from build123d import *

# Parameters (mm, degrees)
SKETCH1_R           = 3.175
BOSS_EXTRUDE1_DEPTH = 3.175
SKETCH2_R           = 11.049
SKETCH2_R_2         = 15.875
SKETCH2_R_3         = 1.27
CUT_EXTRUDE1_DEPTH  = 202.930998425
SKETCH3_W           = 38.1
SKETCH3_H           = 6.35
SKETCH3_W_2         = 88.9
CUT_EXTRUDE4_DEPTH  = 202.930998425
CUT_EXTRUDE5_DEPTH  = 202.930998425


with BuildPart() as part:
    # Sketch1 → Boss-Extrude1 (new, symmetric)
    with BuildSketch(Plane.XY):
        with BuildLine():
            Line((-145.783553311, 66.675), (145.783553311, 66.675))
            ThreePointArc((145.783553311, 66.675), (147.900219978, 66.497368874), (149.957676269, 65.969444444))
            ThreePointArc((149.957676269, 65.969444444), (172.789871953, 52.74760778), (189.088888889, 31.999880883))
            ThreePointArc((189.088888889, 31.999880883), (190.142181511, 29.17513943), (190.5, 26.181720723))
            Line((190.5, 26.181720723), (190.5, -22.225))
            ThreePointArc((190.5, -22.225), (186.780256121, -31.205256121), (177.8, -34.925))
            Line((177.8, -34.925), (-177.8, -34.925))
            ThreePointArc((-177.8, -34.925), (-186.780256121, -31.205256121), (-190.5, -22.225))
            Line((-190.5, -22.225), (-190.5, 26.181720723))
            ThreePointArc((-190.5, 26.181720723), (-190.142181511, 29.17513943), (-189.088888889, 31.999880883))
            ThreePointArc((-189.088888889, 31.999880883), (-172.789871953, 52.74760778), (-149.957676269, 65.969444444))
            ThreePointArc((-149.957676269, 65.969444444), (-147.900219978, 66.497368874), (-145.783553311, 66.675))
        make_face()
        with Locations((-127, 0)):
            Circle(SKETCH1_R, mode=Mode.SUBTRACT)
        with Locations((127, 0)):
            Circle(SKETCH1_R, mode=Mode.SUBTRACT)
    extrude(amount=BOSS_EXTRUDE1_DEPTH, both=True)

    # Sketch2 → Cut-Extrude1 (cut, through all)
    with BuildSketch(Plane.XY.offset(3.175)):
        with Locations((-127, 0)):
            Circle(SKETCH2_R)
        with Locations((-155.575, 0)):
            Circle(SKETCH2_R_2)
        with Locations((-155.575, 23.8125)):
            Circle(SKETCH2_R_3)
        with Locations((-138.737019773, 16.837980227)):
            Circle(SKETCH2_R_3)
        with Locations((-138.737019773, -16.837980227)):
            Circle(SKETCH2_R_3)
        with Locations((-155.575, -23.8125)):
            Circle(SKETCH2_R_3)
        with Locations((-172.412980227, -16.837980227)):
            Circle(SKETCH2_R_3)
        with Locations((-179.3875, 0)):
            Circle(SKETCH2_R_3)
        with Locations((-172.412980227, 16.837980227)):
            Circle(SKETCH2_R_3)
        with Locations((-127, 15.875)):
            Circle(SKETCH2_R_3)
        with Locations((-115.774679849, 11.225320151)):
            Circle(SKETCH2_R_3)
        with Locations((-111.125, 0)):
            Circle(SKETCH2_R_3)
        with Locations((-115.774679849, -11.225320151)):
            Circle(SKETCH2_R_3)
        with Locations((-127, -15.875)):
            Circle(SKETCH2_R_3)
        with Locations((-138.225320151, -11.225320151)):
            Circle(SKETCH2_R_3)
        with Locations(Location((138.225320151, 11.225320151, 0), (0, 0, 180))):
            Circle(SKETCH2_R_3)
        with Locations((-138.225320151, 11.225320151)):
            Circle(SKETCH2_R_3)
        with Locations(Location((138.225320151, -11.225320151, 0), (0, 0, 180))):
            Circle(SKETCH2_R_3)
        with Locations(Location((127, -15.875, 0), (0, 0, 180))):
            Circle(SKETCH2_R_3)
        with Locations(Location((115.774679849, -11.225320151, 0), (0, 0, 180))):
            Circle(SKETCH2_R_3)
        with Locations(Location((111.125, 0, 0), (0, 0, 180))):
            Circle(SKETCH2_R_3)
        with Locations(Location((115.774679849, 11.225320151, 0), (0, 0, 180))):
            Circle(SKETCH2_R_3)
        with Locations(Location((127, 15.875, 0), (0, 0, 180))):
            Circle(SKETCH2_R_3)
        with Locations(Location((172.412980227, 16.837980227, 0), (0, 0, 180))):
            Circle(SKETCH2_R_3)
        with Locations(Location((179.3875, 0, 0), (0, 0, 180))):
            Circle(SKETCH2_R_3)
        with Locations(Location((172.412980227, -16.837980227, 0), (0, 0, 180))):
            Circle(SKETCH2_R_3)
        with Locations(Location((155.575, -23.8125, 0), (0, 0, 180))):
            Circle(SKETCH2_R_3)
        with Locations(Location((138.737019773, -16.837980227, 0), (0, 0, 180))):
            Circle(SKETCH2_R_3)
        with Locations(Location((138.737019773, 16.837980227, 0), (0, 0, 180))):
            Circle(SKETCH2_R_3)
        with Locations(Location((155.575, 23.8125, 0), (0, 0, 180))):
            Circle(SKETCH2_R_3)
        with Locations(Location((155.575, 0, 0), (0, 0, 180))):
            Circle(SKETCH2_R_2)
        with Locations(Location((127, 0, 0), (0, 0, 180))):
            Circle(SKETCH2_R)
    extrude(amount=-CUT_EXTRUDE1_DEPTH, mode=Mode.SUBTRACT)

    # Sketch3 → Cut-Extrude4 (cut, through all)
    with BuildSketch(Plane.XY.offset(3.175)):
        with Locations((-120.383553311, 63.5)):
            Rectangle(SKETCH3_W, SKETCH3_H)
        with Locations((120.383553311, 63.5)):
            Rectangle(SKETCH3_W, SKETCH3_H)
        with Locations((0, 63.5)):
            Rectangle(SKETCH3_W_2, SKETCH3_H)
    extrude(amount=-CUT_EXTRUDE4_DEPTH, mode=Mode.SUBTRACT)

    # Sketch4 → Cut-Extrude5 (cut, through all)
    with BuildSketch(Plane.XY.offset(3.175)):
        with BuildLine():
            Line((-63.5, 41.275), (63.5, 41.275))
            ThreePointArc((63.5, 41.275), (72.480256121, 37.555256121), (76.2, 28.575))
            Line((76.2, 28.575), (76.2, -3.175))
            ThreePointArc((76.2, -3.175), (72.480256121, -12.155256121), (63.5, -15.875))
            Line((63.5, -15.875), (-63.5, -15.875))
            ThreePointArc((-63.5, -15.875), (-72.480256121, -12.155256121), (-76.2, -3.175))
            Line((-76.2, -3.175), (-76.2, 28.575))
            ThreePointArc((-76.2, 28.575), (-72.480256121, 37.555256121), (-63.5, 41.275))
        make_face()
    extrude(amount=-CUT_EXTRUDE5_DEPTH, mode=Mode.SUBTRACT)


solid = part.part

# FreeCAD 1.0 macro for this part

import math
import FreeCAD as App
import Part
import Sketcher

V = App.Vector
Q = App.Units.Quantity


def add_polygon(sketch, points):
    """Adds a closed chain of lines whose ends are joined by coincident constraints."""
    first, n = sketch.GeometryCount, len(points)
    for a, b in zip(points, points[1:] + points[:1]):
        sketch.addGeometry(Part.LineSegment(App.Vector(*a, 0), App.Vector(*b, 0)), False)
    for i in range(n):
        sketch.addConstraint(Sketcher.Constraint("Coincident", first + i, 2, first + (i + 1) % n, 1))

doc = App.newDocument("Part")
body = doc.addObject("PartDesign::Body", "Body")

sketch1 = doc.addObject("Sketcher::SketchObject", "Sketch")
body.addObject(sketch1)
sketch1.AttachmentSupport = (doc.XY_Plane, [""])
sketch1.MapMode = "FlatFace"
sketch1.addGeometry([
    Part.LineSegment(V(145.8, 66.7, 0), V(-145.8, 66.7, 0)),
    Part.ArcOfCircle(Part.Circle(V(-145.8, 54, 0), V(0, 0, 1), 12.7), math.radians(90), math.radians(109.19)),
    Part.ArcOfCircle(Part.Circle(V(-127, 0, 0), V(0, 0, 1), 69.8), math.radians(109), math.radians(153)),
    Part.ArcOfCircle(Part.Circle(V(-177.8, 26.2, 0), V(0, 0, 1), 12.7), math.radians(153), math.radians(180)),
    Part.LineSegment(V(-190.5, 26.2, 0), V(-190.5, -22.2, 0)),
    Part.ArcOfCircle(Part.Circle(V(-177.8, -22.2, 0), V(0, 0, 1), 12.7), math.radians(180), math.radians(270)),
    Part.LineSegment(V(-177.8, -34.9, 0), V(177.8, -34.9, 0)),
    Part.ArcOfCircle(Part.Circle(V(177.8, -22.2, 0), V(0, 0, 1), 12.7), math.radians(-90), math.radians(0)),
    Part.LineSegment(V(190.5, -22.2, 0), V(190.5, 26.2, 0)),
    Part.ArcOfCircle(Part.Circle(V(177.8, 26.2, 0), V(0, 0, 1), 12.7), math.radians(0), math.radians(27)),
    Part.ArcOfCircle(Part.Circle(V(127, 0, 0), V(0, 0, 1), 69.8), math.radians(27), math.radians(71)),
    Part.ArcOfCircle(Part.Circle(V(145.8, 54, 0), V(0, 0, 1), 12.7), math.radians(70.81), math.radians(90)),
    Part.Circle(V(127, 0, 0), V(0, 0, 1), 3.2),
    Part.Circle(V(-127, 0, 0), V(0, 0, 1), 3.2),
], False)
sketch1.addConstraint([
    Sketcher.Constraint("Tangent", 0, 2, 1, 1),
    Sketcher.Constraint("Tangent", 1, 2, 2, 1),
    Sketcher.Constraint("Tangent", 2, 2, 3, 1),
    Sketcher.Constraint("Tangent", 3, 2, 4, 1),
    Sketcher.Constraint("Tangent", 4, 2, 5, 1),
    Sketcher.Constraint("Tangent", 5, 2, 6, 1),
    Sketcher.Constraint("Tangent", 6, 2, 7, 1),
    Sketcher.Constraint("Tangent", 7, 2, 8, 1),
    Sketcher.Constraint("Tangent", 8, 2, 9, 1),
    Sketcher.Constraint("Tangent", 9, 2, 10, 1),
    Sketcher.Constraint("Tangent", 10, 2, 11, 1),
    Sketcher.Constraint("Tangent", 11, 2, 0, 1),
    Sketcher.Constraint("Horizontal", 0),
    Sketcher.Constraint("Vertical", 4),
    Sketcher.Constraint("Horizontal", 6),
    Sketcher.Constraint("Vertical", 8),
    Sketcher.Constraint("Coincident", 12, 3, 10, 3),
    Sketcher.Constraint("Coincident", 13, 3, 2, 3),
    Sketcher.Constraint("Equal", 1, 3),
    Sketcher.Constraint("Equal", 3, 5),
    Sketcher.Constraint("Equal", 5, 7),
    Sketcher.Constraint("Equal", 7, 9),
    Sketcher.Constraint("Equal", 2, 10),
    Sketcher.Constraint("Equal", 9, 11),
    Sketcher.Constraint("Equal", 12, 13),
    Sketcher.Constraint("Symmetric", 2, 3, 10, 3, -1, 1),
    Sketcher.Constraint("Symmetric", 3, 3, 9, 3, -2),
    Sketcher.Constraint("Radius", 1, Q("0.5 in")),
    Sketcher.Constraint("Diameter", 12, Q("0.25 in")),
    Sketcher.Constraint("DistanceX", 6, 1, 6, 2, Q("14 in")),
    Sketcher.Constraint("Radius", 2, Q("2.75 in")),
    Sketcher.Constraint("DistanceX", 2, 3, -1, 1, Q("5 in")),
    Sketcher.Constraint("DistanceY", 5, 3, 1, 3, Q("3 in")),
    Sketcher.Constraint("DistanceY", -1, 1, 1, 3, Q("2.125 in")),
])
pad1 = doc.addObject("PartDesign::Pad", "Pad")
body.addObject(pad1)
pad1.Profile = sketch1
pad1.Length = Q("0.25 in")
pad1.Midplane = True

sketch2 = doc.addObject("Sketcher::SketchObject", "Sketch001")
body.addObject(sketch2)
sketch2.AttachmentSupport = (doc.XY_Plane, [""])
sketch2.MapMode = "FlatFace"
sketch2.AttachmentOffset = App.Placement(V(0, 0, 0.125 * 25.4), App.Rotation())
sketch2.addGeometry([
    Part.Circle(V(-127, 0, 0), V(0, 0, 1), 11),
    Part.Circle(V(-155.6, 0, 0), V(0, 0, 1), 15.9),
    Part.Circle(V(-155.6, 23.8, 0), V(0, 0, 1), 1.3),
    Part.Circle(V(-138.7, 16.8, 0), V(0, 0, 1), 1.3),
    Part.Circle(V(-138.7, -16.8, 0), V(0, 0, 1), 1.3),
    Part.Circle(V(-155.6, -23.8, 0), V(0, 0, 1), 1.3),
    Part.Circle(V(-172.4, -16.8, 0), V(0, 0, 1), 1.3),
    Part.Circle(V(-179.4, 0, 0), V(0, 0, 1), 1.3),
    Part.Circle(V(-172.4, 16.8, 0), V(0, 0, 1), 1.3),
    Part.Circle(V(-127, 15.9, 0), V(0, 0, 1), 1.3),
    Part.Circle(V(-115.8, 11.2, 0), V(0, 0, 1), 1.3),
    Part.Circle(V(-111.1, 0, 0), V(0, 0, 1), 1.3),
    Part.Circle(V(-115.8, -11.2, 0), V(0, 0, 1), 1.3),
    Part.Circle(V(-127, -15.9, 0), V(0, 0, 1), 1.3),
    Part.Circle(V(-138.2, -11.2, 0), V(0, 0, 1), 1.3),
    Part.Circle(V(138.2, 11.2, 0), V(0, 0, 1), 1.3),
    Part.Circle(V(-138.2, 11.2, 0), V(0, 0, 1), 1.3),
    Part.Circle(V(138.2, -11.2, 0), V(0, 0, 1), 1.3),
    Part.Circle(V(127, -15.9, 0), V(0, 0, 1), 1.3),
    Part.Circle(V(115.8, -11.2, 0), V(0, 0, 1), 1.3),
    Part.Circle(V(111.1, 0, 0), V(0, 0, 1), 1.3),
    Part.Circle(V(115.8, 11.2, 0), V(0, 0, 1), 1.3),
    Part.Circle(V(127, 15.9, 0), V(0, 0, 1), 1.3),
    Part.Circle(V(172.4, 16.8, 0), V(0, 0, 1), 1.3),
    Part.Circle(V(179.4, 0, 0), V(0, 0, 1), 1.3),
    Part.Circle(V(172.4, -16.8, 0), V(0, 0, 1), 1.3),
    Part.Circle(V(155.6, -23.8, 0), V(0, 0, 1), 1.3),
    Part.Circle(V(138.7, -16.8, 0), V(0, 0, 1), 1.3),
    Part.Circle(V(138.7, 16.8, 0), V(0, 0, 1), 1.3),
    Part.Circle(V(155.6, 23.8, 0), V(0, 0, 1), 1.3),
    Part.Circle(V(155.6, 0, 0), V(0, 0, 1), 15.9),
    Part.Circle(V(127, 0, 0), V(0, 0, 1), 11),
], False)
sketch2.addConstraint([
    Sketcher.Constraint("Equal", 2, 3),
    Sketcher.Constraint("Equal", 3, 4),
    Sketcher.Constraint("Equal", 4, 5),
    Sketcher.Constraint("Equal", 5, 6),
    Sketcher.Constraint("Equal", 6, 7),
    Sketcher.Constraint("Equal", 7, 8),
    Sketcher.Constraint("Equal", 8, 9),
    Sketcher.Constraint("Equal", 9, 10),
    Sketcher.Constraint("Equal", 10, 11),
    Sketcher.Constraint("Equal", 11, 12),
    Sketcher.Constraint("Equal", 12, 13),
    Sketcher.Constraint("Equal", 13, 14),
    Sketcher.Constraint("Equal", 14, 15),
    Sketcher.Constraint("Equal", 15, 16),
    Sketcher.Constraint("Equal", 16, 17),
    Sketcher.Constraint("Equal", 17, 18),
    Sketcher.Constraint("Equal", 18, 19),
    Sketcher.Constraint("Equal", 19, 20),
    Sketcher.Constraint("Equal", 20, 21),
    Sketcher.Constraint("Equal", 21, 22),
    Sketcher.Constraint("Equal", 22, 23),
    Sketcher.Constraint("Equal", 23, 24),
    Sketcher.Constraint("Equal", 24, 25),
    Sketcher.Constraint("Equal", 25, 26),
    Sketcher.Constraint("Equal", 26, 27),
    Sketcher.Constraint("Equal", 27, 28),
    Sketcher.Constraint("Equal", 28, 29),
    Sketcher.Constraint("Equal", 1, 30),
    Sketcher.Constraint("Equal", 0, 31),
    Sketcher.Constraint("Symmetric", 14, 3, 15, 3, -1, 1),
    Sketcher.Constraint("Symmetric", 16, 3, 17, 3, -1, 1),
    Sketcher.Constraint("Symmetric", 9, 3, 18, 3, -1, 1),
    Sketcher.Constraint("Symmetric", 10, 3, 19, 3, -1, 1),
    Sketcher.Constraint("Symmetric", 11, 3, 20, 3, -1, 1),
    Sketcher.Constraint("Symmetric", 12, 3, 21, 3, -1, 1),
    Sketcher.Constraint("Symmetric", 13, 3, 22, 3, -1, 1),
    Sketcher.Constraint("Symmetric", 6, 3, 23, 3, -1, 1),
    Sketcher.Constraint("Symmetric", 7, 3, 24, 3, -1, 1),
    Sketcher.Constraint("Symmetric", 8, 3, 25, 3, -1, 1),
    Sketcher.Constraint("Symmetric", 2, 3, 26, 3, -1, 1),
    Sketcher.Constraint("Symmetric", 3, 3, 27, 3, -1, 1),
    Sketcher.Constraint("Symmetric", 4, 3, 28, 3, -1, 1),
    Sketcher.Constraint("Symmetric", 5, 3, 29, 3, -1, 1),
    Sketcher.Constraint("Symmetric", 1, 3, 30, 3, -1, 1),
    Sketcher.Constraint("Symmetric", 0, 3, 31, 3, -1, 1),
    Sketcher.Constraint("Symmetric", 15, 3, 16, 3, -2),
    Sketcher.Constraint("Symmetric", 13, 3, 18, 3, -2),
    Sketcher.Constraint("Symmetric", 12, 3, 19, 3, -2),
    Sketcher.Constraint("Symmetric", 8, 3, 23, 3, -2),
    Sketcher.Constraint("Symmetric", 5, 3, 26, 3, -2),
    Sketcher.Constraint("Symmetric", 4, 3, 27, 3, -2),
    Sketcher.Constraint("PointOnObject", 0, 3, -1),
    Sketcher.Constraint("PointOnObject", 1, 3, -1),
    Sketcher.Constraint("PointOnObject", 7, 3, -1),
    Sketcher.Constraint("PointOnObject", 11, 3, -1),
    Sketcher.Constraint("Horizontal", 4, 3, 6, 3),
    Sketcher.Constraint("Horizontal", 12, 3, 14, 3),
    Sketcher.Constraint("Vertical", 1, 3, 2, 3),
    Sketcher.Constraint("Vertical", 0, 3, 9, 3),
    Sketcher.Constraint("Diameter", 2, Q("0.1 in")),
    Sketcher.Constraint("Diameter", 0, Q("0.87 in")),
    Sketcher.Constraint("Diameter", 1, Q("1.25 in")),
    Sketcher.Constraint("DistanceX", 0, 3, -1, 1, Q("5 in")),
    Sketcher.Constraint("DistanceX", 10, 3, 15, 3, Q("10 in")),
    Sketcher.Constraint("DistanceX", 11, 3, 20, 3, Q("8.75 in")),
    Sketcher.Constraint("DistanceX", 1, 3, -1, 1, Q("6.125 in")),
    Sketcher.Constraint("DistanceY", -1, 1, 2, 3, Q("0.9375 in")),
    Sketcher.Constraint("DistanceX", 7, 3, -1, 1, Q("7.0625 in")),
    Sketcher.Constraint("DistanceY", -1, 1, 9, 3, Q("0.625 in")),
    Sketcher.Constraint("DistanceY", 4, 3, 10, 3, 28.0633),
    Sketcher.Constraint("DistanceX", 4, 3, 14, 3, 0.5117),
    Sketcher.Constraint("DistanceX", 21, 3, 23, 3, 56.6383),
    Sketcher.Constraint("DistanceX", 3, 3, -1, 1, 138.73702),
    Sketcher.Constraint("DistanceY", -1, 1, 3, 3, 16.83798),
])
pocket1 = doc.addObject("PartDesign::Pocket", "Pocket")
body.addObject(pocket1)
pocket1.Profile = sketch2
pocket1.Type = "ThroughAll"

sketch3 = doc.addObject("Sketcher::SketchObject", "Sketch002")
body.addObject(sketch3)
sketch3.AttachmentSupport = (doc.XY_Plane, [""])
sketch3.MapMode = "FlatFace"
sketch3.AttachmentOffset = App.Placement(V(0, 0, 0.125 * 25.4), App.Rotation())
add_polygon(sketch3, [(-139, 67), (-139, 60), (-101, 60), (-101, 67)])
add_polygon(sketch3, [(101, 67), (101, 60), (139, 60), (139, 67)])
add_polygon(sketch3, [(-44, 67), (-44, 60), (44, 60), (44, 67)])
sketch3.addConstraint([
    Sketcher.Constraint("Vertical", 0),
    Sketcher.Constraint("Horizontal", 1),
    Sketcher.Constraint("Vertical", 2),
    Sketcher.Constraint("Horizontal", 3),
    Sketcher.Constraint("Vertical", 4),
    Sketcher.Constraint("Horizontal", 5),
    Sketcher.Constraint("Vertical", 6),
    Sketcher.Constraint("Horizontal", 7),
    Sketcher.Constraint("Vertical", 8),
    Sketcher.Constraint("Horizontal", 9),
    Sketcher.Constraint("Vertical", 10),
    Sketcher.Constraint("Horizontal", 11),
    Sketcher.Constraint("Symmetric", 1, 2, 4, 2, -2),
    Sketcher.Constraint("Symmetric", 3, 2, 6, 2, -2),
    Sketcher.Constraint("Horizontal", 5, 2, 8, 2),
    Sketcher.Constraint("Horizontal", 7, 2, 10, 2),
    Sketcher.Constraint("DistanceX", 1, 1, 1, 2, Q("1.5 in")),
    Sketcher.Constraint("DistanceX", 9, 1, 9, 2, Q("3.5 in")),
    Sketcher.Constraint("DistanceY", 0, 2, 0, 1, Q("0.25 in")),
    Sketcher.Constraint("DistanceX", 8, 2, -1, 1, Q("1.75 in")),
    Sketcher.Constraint("DistanceY", -1, 1, 0, 2, Q("2.375 in")),
    Sketcher.Constraint("DistanceX", 0, 2, -1, 1, 139.433553),
])
pocket2 = doc.addObject("PartDesign::Pocket", "Pocket001")
body.addObject(pocket2)
pocket2.Profile = sketch3
pocket2.Type = "ThroughAll"

sketch4 = doc.addObject("Sketcher::SketchObject", "Sketch003")
body.addObject(sketch4)
sketch4.AttachmentSupport = (doc.XY_Plane, [""])
sketch4.MapMode = "FlatFace"
sketch4.AttachmentOffset = App.Placement(V(0, 0, 0.125 * 25.4), App.Rotation())
sketch4.addGeometry([
    Part.LineSegment(V(64, 41, 0), V(-64, 41, 0)),
    Part.ArcOfCircle(Part.Circle(V(-64, 29, 0), V(0, 0, 1), 13), math.radians(90), math.radians(180)),
    Part.LineSegment(V(-76, 29, 0), V(-76, -3, 0)),
    Part.ArcOfCircle(Part.Circle(V(-64, -3, 0), V(0, 0, 1), 13), math.radians(180), math.radians(270)),
    Part.LineSegment(V(-64, -16, 0), V(64, -16, 0)),
    Part.ArcOfCircle(Part.Circle(V(64, -3, 0), V(0, 0, 1), 13), math.radians(-90), math.radians(0)),
    Part.LineSegment(V(76, -3, 0), V(76, 29, 0)),
    Part.ArcOfCircle(Part.Circle(V(64, 29, 0), V(0, 0, 1), 13), math.radians(0), math.radians(90)),
], False)
sketch4.addConstraint([
    Sketcher.Constraint("Tangent", 0, 2, 1, 1),
    Sketcher.Constraint("Tangent", 1, 2, 2, 1),
    Sketcher.Constraint("Tangent", 2, 2, 3, 1),
    Sketcher.Constraint("Tangent", 3, 2, 4, 1),
    Sketcher.Constraint("Tangent", 4, 2, 5, 1),
    Sketcher.Constraint("Tangent", 5, 2, 6, 1),
    Sketcher.Constraint("Tangent", 6, 2, 7, 1),
    Sketcher.Constraint("Tangent", 7, 2, 0, 1),
    Sketcher.Constraint("Horizontal", 0),
    Sketcher.Constraint("Vertical", 2),
    Sketcher.Constraint("Horizontal", 4),
    Sketcher.Constraint("Vertical", 6),
    Sketcher.Constraint("Equal", 1, 3),
    Sketcher.Constraint("Equal", 3, 5),
    Sketcher.Constraint("Equal", 5, 7),
    Sketcher.Constraint("Radius", 1, Q("0.5 in")),
    Sketcher.Constraint("DistanceX", 0, 2, 0, 1, Q("5 in")),
    Sketcher.Constraint("DistanceX", 1, 2, -1, 1, Q("3 in")),
    Sketcher.Constraint("DistanceY", 2, 2, 2, 1, Q("1.25 in")),
    Sketcher.Constraint("DistanceY", -1, 1, 1, 3, Q("1.125 in")),
])
pocket3 = doc.addObject("PartDesign::Pocket", "Pocket002")
body.addObject(pocket3)
pocket3.Profile = sketch4
pocket3.Type = "ThroughAll"

doc.recompute()
